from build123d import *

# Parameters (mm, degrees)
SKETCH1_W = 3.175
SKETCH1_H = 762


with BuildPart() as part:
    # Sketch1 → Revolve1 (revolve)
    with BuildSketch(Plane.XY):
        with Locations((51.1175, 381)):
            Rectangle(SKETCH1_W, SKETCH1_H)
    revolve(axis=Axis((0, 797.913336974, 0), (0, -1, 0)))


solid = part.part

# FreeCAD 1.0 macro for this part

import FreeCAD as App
import Part
import Sketcher

V = App.Vector
Q = App.Units.Quantity

doc = App.newDocument("Part")
params = doc.addObject("Spreadsheet::Sheet", "Params")
for row, (alias, value) in enumerate([
    ("sketch1_height", "30 in"),
    ("sketch1_width", "0.125 in"),
    ("revolution_angle", "360 deg"),
], start=1):
    params.set(f"A{row}", alias)
    params.set(f"B{row}", "=" + value)
    params.setAlias(f"B{row}", alias)

body = doc.addObject("PartDesign::Body", "Body")

# Sketch on XY plane
sketch1 = body.newObject("Sketcher::SketchObject", "Sketch")
sketch1.AttachmentSupport = (doc.getObject("XY_Plane"), [""])
sketch1.MapMode = "FlatFace"
sketch1.addGeometry([
    Part.LineSegment(V(49.5, 762, 0), V(49.5, 0, 0)),
    Part.LineSegment(V(49.5, 0, 0), V(52.7, 0, 0)),
    Part.LineSegment(V(52.7, 0, 0), V(52.7, 762, 0)),
    Part.LineSegment(V(52.7, 762, 0), V(49.5, 762, 0)),
], False)
sketch1.addConstraint([
    Sketcher.Constraint("Coincident", 0, 2, 1, 1),
    Sketcher.Constraint("Coincident", 1, 2, 2, 1),
    Sketcher.Constraint("Coincident", 2, 2, 3, 1),
    Sketcher.Constraint("Coincident", 3, 2, 0, 1),
    Sketcher.Constraint("Vertical", 0),
    Sketcher.Constraint("Horizontal", 1),
    Sketcher.Constraint("Vertical", 2),
    Sketcher.Constraint("Horizontal", 3),
    Sketcher.Constraint("PointOnObject", 0, 2, -1),
    Sketcher.Constraint("DistanceY", 0, 2, 0, 1, Q("30 in")),
    Sketcher.Constraint("DistanceX", 1, 1, 1, 2, Q("0.125 in")),
    Sketcher.Constraint("DistanceX", -1, 1, 0, 2, Q("1.95 in")),
])
sketch1.setExpression("Constraints[9]", "Params.sketch1_height")
sketch1.setExpression("Constraints[10]", "Params.sketch1_width")
revolution = body.newObject("PartDesign::Revolution", "Revolution")
revolution.Profile = sketch1
revolution.ReferenceAxis = (sketch1, ["V_Axis"])
revolution.setExpression("Angle", "Params.revolution_angle")

doc.recompute()
